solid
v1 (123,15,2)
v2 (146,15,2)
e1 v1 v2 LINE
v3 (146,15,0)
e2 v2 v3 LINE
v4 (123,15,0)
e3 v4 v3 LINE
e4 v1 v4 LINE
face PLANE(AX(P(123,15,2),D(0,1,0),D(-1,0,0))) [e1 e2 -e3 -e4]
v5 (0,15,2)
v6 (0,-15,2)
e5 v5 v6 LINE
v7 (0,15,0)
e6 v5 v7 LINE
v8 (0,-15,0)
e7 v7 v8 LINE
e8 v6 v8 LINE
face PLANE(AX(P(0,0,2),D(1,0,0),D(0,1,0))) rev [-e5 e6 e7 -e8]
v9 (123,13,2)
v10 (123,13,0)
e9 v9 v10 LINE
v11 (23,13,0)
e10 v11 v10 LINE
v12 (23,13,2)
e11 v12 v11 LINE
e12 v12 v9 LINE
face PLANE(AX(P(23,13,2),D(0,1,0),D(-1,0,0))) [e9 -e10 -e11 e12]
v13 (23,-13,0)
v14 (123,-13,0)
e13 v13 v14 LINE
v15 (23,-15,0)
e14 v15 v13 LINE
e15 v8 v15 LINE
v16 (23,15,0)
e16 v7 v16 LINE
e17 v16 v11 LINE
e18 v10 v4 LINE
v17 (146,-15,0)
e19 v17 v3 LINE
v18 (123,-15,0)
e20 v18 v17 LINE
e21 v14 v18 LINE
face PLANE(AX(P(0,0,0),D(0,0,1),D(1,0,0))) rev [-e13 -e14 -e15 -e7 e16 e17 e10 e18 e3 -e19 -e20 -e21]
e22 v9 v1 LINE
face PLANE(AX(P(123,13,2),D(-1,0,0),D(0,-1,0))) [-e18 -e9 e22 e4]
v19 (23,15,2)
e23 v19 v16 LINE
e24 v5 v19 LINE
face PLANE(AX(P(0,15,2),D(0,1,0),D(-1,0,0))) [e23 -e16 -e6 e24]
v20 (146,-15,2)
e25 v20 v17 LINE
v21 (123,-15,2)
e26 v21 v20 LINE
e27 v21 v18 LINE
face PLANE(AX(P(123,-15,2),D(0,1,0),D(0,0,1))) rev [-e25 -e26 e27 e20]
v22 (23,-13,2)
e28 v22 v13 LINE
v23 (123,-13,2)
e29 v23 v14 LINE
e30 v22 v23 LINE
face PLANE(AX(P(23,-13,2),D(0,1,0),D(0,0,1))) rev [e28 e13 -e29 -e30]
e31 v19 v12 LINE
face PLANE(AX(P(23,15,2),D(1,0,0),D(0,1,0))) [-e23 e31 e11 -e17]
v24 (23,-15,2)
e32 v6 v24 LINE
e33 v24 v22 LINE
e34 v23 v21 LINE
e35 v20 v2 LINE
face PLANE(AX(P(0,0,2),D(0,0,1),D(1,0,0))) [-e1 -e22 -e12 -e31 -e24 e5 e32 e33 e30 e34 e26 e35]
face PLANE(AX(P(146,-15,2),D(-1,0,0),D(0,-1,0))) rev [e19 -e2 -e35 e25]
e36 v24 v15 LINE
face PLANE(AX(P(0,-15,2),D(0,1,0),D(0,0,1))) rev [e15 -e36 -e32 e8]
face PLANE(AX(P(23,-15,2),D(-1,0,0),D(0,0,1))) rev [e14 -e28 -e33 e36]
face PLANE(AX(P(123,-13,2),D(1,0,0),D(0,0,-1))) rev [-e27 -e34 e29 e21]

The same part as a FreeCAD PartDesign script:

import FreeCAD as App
import Part
import Sketcher
Q = App.Units.Quantity


def add_polygon(sketch, points):
    """Adds a closed chain of lines whose ends are joined by coincident constraints."""
    first, n = sketch.GeometryCount, len(points)
    for a, b in zip(points, points[1:] + points[:1]):
        sketch.addGeometry(Part.LineSegment(App.Vector(*a, 0), App.Vector(*b, 0)), False)
    for i in range(n):
        sketch.addConstraint(Sketcher.Constraint("Coincident", first + i, 2, first + (i + 1) % n, 1))

doc = App.newDocument("Part")
body = doc.addObject("PartDesign::Body", "Body")

# Sketch on XY plane
sketch1 = body.newObject("Sketcher::SketchObject", "Sketch")
sketch1.AttachmentSupport = (doc.getObject("XY_Plane"), [""])
sketch1.MapMode = "FlatFace"
add_polygon(sketch1, [(0, 0), (0, -15), (23, -15), (23, -13), (123, -13), (123, -15), (146, -15), (146, 0)])  # lines 0-7
sketch1.addConstraint([
    Sketcher.Constraint("Vertical", 0),
    Sketcher.Constraint("Horizontal", 1),
    Sketcher.Constraint("Vertical", 2),
    Sketcher.Constraint("Horizontal", 3),
    Sketcher.Constraint("Vertical", 4),
    Sketcher.Constraint("Horizontal", 5),
    Sketcher.Constraint("Vertical", 6),
    Sketcher.Constraint("Horizontal", 7),
    Sketcher.Constraint("Coincident", 7, 2, -1, 1),
    Sketcher.Constraint("Horizontal", 1, 2, 4, 2),
    Sketcher.Constraint("Equal", 1, 5),
    Sketcher.Constraint("DistanceX", 1, 1, 1, 2, Q("23 mm")),
    Sketcher.Constraint("DistanceX", 3, 1, 3, 2, Q("100 mm")),
    Sketcher.Constraint("DistanceY", 0, 2, 0, 1, Q("15 mm")),
    Sketcher.Constraint("DistanceY", 2, 1, 2, 2, Q("2 mm")),
])
pad1 = body.newObject("PartDesign::Pad", "Pad")
pad1.Profile = sketch1
pad1.Length = 2
doc.recompute()

mirrored = body.newObject("PartDesign::Mirrored", "Mirrored")
mirrored.Originals = [pad1]
mirrored.MirrorPlane = (doc.getObject("XZ_Plane"), [""])
body.Tip = mirrored

doc.recompute()
